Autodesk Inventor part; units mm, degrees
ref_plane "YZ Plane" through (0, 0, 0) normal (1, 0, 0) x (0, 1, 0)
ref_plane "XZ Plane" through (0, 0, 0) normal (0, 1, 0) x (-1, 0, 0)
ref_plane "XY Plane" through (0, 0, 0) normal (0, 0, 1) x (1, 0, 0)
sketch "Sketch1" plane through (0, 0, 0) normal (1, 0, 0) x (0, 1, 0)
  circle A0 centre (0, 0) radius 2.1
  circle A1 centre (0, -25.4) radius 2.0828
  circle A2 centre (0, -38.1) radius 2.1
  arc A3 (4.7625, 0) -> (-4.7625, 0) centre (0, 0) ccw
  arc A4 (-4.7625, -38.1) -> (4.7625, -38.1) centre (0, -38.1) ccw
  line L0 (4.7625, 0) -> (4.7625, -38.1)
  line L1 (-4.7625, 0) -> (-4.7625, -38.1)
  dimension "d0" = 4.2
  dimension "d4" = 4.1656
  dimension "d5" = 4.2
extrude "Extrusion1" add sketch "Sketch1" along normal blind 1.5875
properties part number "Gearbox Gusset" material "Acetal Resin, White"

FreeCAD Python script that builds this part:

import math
import FreeCAD as App
import Part
import Sketcher
Q = App.Units.Quantity

doc = App.newDocument("Part")
body = doc.addObject("PartDesign::Body", "Body")

sketch1 = doc.addObject("Sketcher::SketchObject", "Sketch")
body.addObject(sketch1)
sketch1.AttachmentSupport = (doc.YZ_Plane, [""])
sketch1.MapMode = "FlatFace"
sketch1.addGeometry([
    Part.LineSegment(App.Vector(4.7625, -38.1, 0), App.Vector(4.7625, 0, 0)),
    Part.ArcOfCircle(Part.Circle(App.Vector(0, 0, 0), App.Vector(0, 0, 1), 4.7625), math.radians(0), math.radians(180)),
    Part.LineSegment(App.Vector(-4.7625, 0, 0), App.Vector(-4.7625, -38.1, 0)),
    Part.ArcOfCircle(Part.Circle(App.Vector(0, -38.1, 0), App.Vector(0, 0, 1), 4.7625), math.radians(180), math.radians(360)),
    Part.Circle(App.Vector(0, -38.1, 0), App.Vector(0, 0, 1), 2.1),
    Part.Circle(App.Vector(0, -25.4, 0), App.Vector(0, 0, 1), 2.0828),
    Part.Circle(App.Vector(0, 0, 0), App.Vector(0, 0, 1), 2.1),
], False)
sketch1.addConstraint([
    Sketcher.Constraint("Tangent", 0, 2, 1, 1),
    Sketcher.Constraint("Tangent", 1, 2, 2, 1),
    Sketcher.Constraint("Tangent", 2, 2, 3, 1),
    Sketcher.Constraint("Tangent", 3, 2, 0, 1),
    Sketcher.Constraint("Vertical", 0),
    Sketcher.Constraint("Vertical", 2),
    Sketcher.Constraint("Coincident", 1, 3, -1, 1),
    Sketcher.Constraint("Coincident", 6, 3, -1, 1),
    Sketcher.Constraint("Coincident", 4, 3, 3, 3),
    Sketcher.Constraint("Equal", 4, 6),
    Sketcher.Constraint("PointOnObject", 5, 3, -2),
    Sketcher.Constraint("Diameter", 5, Q("0.164 in")),
    Sketcher.Constraint("Diameter", 4, 4.2),
    Sketcher.Constraint("DistanceY", 0, 1, 0, 2, Q("1.5 in")),
    Sketcher.Constraint("DistanceY", 5, 3, -1, 1, Q("1 in")),
    Sketcher.Constraint("Radius", 1, Q("0.1875 in")),
])
pad1 = doc.addObject("PartDesign::Pad", "Pad")
body.addObject(pad1)
pad1.Profile = sketch1
pad1.Length = Q("0.0625 in")

doc.recompute()
